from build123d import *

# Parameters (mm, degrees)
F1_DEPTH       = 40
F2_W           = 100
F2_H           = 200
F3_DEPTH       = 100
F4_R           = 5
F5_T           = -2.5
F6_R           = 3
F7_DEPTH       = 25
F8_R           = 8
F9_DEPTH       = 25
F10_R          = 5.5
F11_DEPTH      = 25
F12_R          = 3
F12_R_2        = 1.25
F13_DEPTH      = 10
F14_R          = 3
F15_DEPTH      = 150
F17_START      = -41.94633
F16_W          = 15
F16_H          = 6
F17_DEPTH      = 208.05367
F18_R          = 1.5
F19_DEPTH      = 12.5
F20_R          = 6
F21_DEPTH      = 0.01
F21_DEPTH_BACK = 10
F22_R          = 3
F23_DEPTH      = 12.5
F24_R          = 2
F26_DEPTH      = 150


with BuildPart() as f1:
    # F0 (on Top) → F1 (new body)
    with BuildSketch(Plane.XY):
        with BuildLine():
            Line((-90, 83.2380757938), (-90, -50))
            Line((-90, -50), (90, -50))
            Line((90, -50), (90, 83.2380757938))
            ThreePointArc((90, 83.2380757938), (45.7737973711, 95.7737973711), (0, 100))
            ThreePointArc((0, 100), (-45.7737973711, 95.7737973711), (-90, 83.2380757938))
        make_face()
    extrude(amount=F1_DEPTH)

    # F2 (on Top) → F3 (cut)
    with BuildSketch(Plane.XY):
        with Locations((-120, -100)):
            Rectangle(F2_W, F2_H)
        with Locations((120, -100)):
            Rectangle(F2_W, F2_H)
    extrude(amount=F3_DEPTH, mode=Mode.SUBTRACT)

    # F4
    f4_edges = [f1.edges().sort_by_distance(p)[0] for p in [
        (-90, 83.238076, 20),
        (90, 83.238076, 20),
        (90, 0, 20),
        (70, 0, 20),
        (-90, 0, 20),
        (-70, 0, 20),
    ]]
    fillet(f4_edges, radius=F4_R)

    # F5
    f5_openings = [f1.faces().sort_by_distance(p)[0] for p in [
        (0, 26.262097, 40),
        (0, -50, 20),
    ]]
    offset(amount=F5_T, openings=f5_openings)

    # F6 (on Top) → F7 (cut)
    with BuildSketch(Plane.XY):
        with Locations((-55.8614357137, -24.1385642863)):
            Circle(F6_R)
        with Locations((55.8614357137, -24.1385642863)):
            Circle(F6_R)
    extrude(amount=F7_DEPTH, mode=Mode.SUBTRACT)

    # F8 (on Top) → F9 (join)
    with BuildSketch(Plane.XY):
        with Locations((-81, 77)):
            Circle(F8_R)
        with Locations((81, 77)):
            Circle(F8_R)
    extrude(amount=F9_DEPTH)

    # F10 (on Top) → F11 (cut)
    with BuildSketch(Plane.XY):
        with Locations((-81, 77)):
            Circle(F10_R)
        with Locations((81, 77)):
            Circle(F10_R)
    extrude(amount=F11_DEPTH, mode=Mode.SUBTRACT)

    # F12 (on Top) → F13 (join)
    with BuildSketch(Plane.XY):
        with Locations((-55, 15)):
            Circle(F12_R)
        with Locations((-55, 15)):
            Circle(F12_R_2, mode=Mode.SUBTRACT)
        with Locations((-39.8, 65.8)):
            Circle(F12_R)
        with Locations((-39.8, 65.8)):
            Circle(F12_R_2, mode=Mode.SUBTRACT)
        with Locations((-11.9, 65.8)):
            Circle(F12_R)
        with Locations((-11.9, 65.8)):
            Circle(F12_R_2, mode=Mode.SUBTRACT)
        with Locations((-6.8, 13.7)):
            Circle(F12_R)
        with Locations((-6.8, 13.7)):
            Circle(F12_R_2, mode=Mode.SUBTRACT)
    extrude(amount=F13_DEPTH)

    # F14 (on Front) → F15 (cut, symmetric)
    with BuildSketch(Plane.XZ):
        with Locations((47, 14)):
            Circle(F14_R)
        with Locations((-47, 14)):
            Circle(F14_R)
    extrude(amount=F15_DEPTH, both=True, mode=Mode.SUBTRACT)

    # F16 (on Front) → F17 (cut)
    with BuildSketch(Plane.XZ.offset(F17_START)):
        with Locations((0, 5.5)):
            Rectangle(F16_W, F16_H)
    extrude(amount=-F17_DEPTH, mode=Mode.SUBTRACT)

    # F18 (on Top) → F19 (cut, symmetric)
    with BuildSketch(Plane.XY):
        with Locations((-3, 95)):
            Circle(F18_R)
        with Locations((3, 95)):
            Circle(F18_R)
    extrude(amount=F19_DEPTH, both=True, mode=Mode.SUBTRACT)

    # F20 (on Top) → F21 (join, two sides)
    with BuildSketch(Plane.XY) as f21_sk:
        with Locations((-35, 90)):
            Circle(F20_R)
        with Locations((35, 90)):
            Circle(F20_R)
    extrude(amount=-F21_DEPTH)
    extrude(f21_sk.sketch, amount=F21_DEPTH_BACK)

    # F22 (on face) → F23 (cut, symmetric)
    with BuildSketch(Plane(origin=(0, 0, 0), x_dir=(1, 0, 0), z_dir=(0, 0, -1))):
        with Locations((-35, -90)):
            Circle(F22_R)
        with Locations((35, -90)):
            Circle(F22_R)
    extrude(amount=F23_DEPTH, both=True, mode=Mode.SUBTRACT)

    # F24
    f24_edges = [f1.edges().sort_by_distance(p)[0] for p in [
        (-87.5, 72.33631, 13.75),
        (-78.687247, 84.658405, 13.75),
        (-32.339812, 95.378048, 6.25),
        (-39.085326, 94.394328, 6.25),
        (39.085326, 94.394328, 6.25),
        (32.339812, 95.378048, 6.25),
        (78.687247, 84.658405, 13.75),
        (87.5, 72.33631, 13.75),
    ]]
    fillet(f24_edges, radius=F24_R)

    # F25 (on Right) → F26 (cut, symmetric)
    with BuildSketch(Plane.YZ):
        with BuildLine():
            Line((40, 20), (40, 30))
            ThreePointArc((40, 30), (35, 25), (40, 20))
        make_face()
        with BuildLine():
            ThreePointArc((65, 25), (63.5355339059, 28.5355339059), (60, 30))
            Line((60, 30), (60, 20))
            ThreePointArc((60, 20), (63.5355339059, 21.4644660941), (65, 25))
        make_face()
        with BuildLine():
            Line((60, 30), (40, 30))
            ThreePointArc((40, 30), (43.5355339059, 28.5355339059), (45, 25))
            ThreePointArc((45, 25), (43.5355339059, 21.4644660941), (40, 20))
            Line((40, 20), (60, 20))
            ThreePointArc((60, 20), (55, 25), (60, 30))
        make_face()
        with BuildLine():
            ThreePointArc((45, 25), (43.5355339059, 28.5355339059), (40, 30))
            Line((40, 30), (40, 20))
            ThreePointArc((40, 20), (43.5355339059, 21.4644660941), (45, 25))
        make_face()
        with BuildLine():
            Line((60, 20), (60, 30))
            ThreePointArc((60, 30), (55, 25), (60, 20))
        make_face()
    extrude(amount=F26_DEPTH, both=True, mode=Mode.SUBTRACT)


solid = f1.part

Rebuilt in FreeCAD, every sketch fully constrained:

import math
import FreeCAD as App
import Part
import Sketcher

V = App.Vector
Q = App.Units.Quantity


def edges_at(feature, points):
    """Names of the edges that pass closest to the given points."""
    edges = feature.Shape.Edges
    near = lambda p: min(range(len(edges)), key=lambda i: edges[i].distToShape(Part.Vertex(*p))[0])
    return sorted({f"Edge{near(p) + 1}" for p in points})


def faces_at(feature, points):
    """Names of the faces that lie closest to the given points."""
    faces = feature.Shape.Faces
    near = lambda p: min(range(len(faces)), key=lambda i: faces[i].distToShape(Part.Vertex(*p))[0])
    return sorted({f"Face{near(p) + 1}" for p in points})

doc = App.newDocument("Part")
body = doc.addObject("PartDesign::Body", "Body")

# Sketch on XY plane
sketch1 = body.newObject("Sketcher::SketchObject", "Sketch")
sketch1.AttachmentSupport = (doc.getObject("XY_Plane"), [""])
sketch1.MapMode = "FlatFace"
sketch1.addGeometry([
    Part.LineSegment(V(-90, 83, 0), V(-90, -50, 0)),  # 0
    Part.LineSegment(V(-90, -50, 0), V(90, -50, 0)),  # 1
    Part.LineSegment(V(90, -50, 0), V(90, 83, 0)),  # 2
    Part.ArcOfCircle(Part.Circle(V(0, -150, 0), V(0, 0, 1), 250), math.radians(69), math.radians(90)),  # 3
    Part.ArcOfCircle(Part.Circle(V(0, -150, 0), V(0, 0, 1), 250), math.radians(90), math.radians(111)),  # 4
], False)
sketch1.addConstraint([
    Sketcher.Constraint("Coincident", 0, 2, 1, 1),
    Sketcher.Constraint("Coincident", 1, 2, 2, 1),
    Sketcher.Constraint("Coincident", 2, 2, 3, 1),
    Sketcher.Constraint("Tangent", 3, 2, 4, 1),
    Sketcher.Constraint("Coincident", 4, 2, 0, 1),
    Sketcher.Constraint("Vertical", 0),
    Sketcher.Constraint("Horizontal", 1),
    Sketcher.Constraint("Vertical", 2),
    Sketcher.Constraint("Equal", 3, 4),
    Sketcher.Constraint("Symmetric", 2, 2, 4, 2, -2),
    Sketcher.Constraint("PointOnObject", 3, 2, -2),
    Sketcher.Constraint("Radius", 3, Q("250 mm")),
    Sketcher.Constraint("DistanceX", 1, 1, 1, 2, Q("180 mm")),
    Sketcher.Constraint("DistanceY", 3, 3, -1, 1, Q("150 mm")),
    Sketcher.Constraint("DistanceY", 0, 2, -1, 1, Q("50 mm")),
])
pad1 = body.newObject("PartDesign::Pad", "Pad")
pad1.Profile = sketch1
pad1.Length = 40

# Sketch on XY plane
sketch2 = body.newObject("Sketcher::SketchObject", "Sketch001")
sketch2.AttachmentSupport = (doc.getObject("XY_Plane"), [""])
sketch2.MapMode = "FlatFace"
sketch2.addGeometry([
    Part.LineSegment(V(-170, 0, 0), V(-170, -200, 0)),  # 0
    Part.LineSegment(V(-170, -200, 0), V(-70, -200, 0)),  # 1
    Part.LineSegment(V(-70, -200, 0), V(-70, 0, 0)),  # 2
    Part.LineSegment(V(-70, 0, 0), V(-170, 0, 0)),  # 3
    Part.LineSegment(V(70, 0, 0), V(70, -200, 0)),  # 4
    Part.LineSegment(V(70, -200, 0), V(170, -200, 0)),  # 5
    Part.LineSegment(V(170, -200, 0), V(170, 0, 0)),  # 6
    Part.LineSegment(V(170, 0, 0), V(70, 0, 0)),  # 7
], False)
sketch2.addConstraint([
    Sketcher.Constraint("Coincident", 0, 2, 1, 1),
    Sketcher.Constraint("Coincident", 1, 2, 2, 1),
    Sketcher.Constraint("Coincident", 2, 2, 3, 1),
    Sketcher.Constraint("Coincident", 3, 2, 0, 1),
    Sketcher.Constraint("Coincident", 4, 2, 5, 1),
    Sketcher.Constraint("Coincident", 5, 2, 6, 1),
    Sketcher.Constraint("Coincident", 6, 2, 7, 1),
    Sketcher.Constraint("Coincident", 7, 2, 4, 1),
    Sketcher.Constraint("Vertical", 0),
    Sketcher.Constraint("Horizontal", 1),
    Sketcher.Constraint("Vertical", 2),
    Sketcher.Constraint("Horizontal", 3),
    Sketcher.Constraint("Vertical", 4),
    Sketcher.Constraint("Horizontal", 5),
    Sketcher.Constraint("Vertical", 6),
    Sketcher.Constraint("Horizontal", 7),
    Sketcher.Constraint("Symmetric", 3, 2, 6, 2, -1, 1),
    Sketcher.Constraint("Symmetric", 1, 2, 4, 2, -2),
    Sketcher.Constraint("PointOnObject", 2, 2, -1),
    Sketcher.Constraint("DistanceX", 1, 1, 1, 2, Q("100 mm")),
    Sketcher.Constraint("DistanceY", 0, 2, 0, 1, Q("200 mm")),
    Sketcher.Constraint("DistanceX", 0, 2, -1, 1, Q("170 mm")),
])
pocket1 = body.newObject("PartDesign::Pocket", "Pocket")
pocket1.Profile = sketch2
pocket1.Length = 100
pocket1.Reversed = True
doc.recompute()

fillet = body.newObject("PartDesign::Fillet", "Fillet")
fillet.Base = (pocket1, edges_at(pocket1, [
    (-90, 83.238, 20),
    (90, 83.238, 20),
    (90, 0, 20),
    (70, 0, 20),
    (-90, 0, 20),
    (-70, 0, 20),
]))
fillet.Radius = 5
doc.recompute()

thickness = body.newObject("PartDesign::Thickness", "Thickness")
thickness.Base = (fillet, faces_at(fillet, [(0, 25, 40), (0, -50, 20)]))
thickness.Value = 2.5
thickness.Reversed = True
thickness.Join = "Arc"

# Sketch on XY plane
sketch3 = body.newObject("Sketcher::SketchObject", "Sketch002")
sketch3.AttachmentSupport = (doc.getObject("XY_Plane"), [""])
sketch3.MapMode = "FlatFace"
sketch3.addGeometry([
    Part.Circle(V(-55.9, -24.1, 0), V(0, 0, 1), 3),
    Part.Circle(V(55.9, -24.1, 0), V(0, 0, 1), 3),
], False)
sketch3.addConstraint([
    Sketcher.Constraint("Equal", 0, 1),
    Sketcher.Constraint("Symmetric", 0, 3, 1, 3, -2),
    Sketcher.Constraint("Diameter", 0, Q("6 mm")),
    Sketcher.Constraint("DistanceX", 0, 3, 1, 3, Q("111.722871 mm")),
    Sketcher.Constraint("DistanceY", 0, 3, -1, 1, Q("24.138564 mm")),
])
pocket2 = body.newObject("PartDesign::Pocket", "Pocket001")
pocket2.Profile = sketch3
pocket2.Length = 25
pocket2.Reversed = True

# Sketch on XY plane
sketch4 = body.newObject("Sketcher::SketchObject", "Sketch003")
sketch4.AttachmentSupport = (doc.getObject("XY_Plane"), [""])
sketch4.MapMode = "FlatFace"
sketch4.addGeometry([
    Part.Circle(V(-81, 77, 0), V(0, 0, 1), 8),
    Part.Circle(V(81, 77, 0), V(0, 0, 1), 8),
], False)
sketch4.addConstraint([
    Sketcher.Constraint("Equal", 0, 1),
    Sketcher.Constraint("Symmetric", 0, 3, 1, 3, -2),
    Sketcher.Constraint("Diameter", 0, Q("16 mm")),
    Sketcher.Constraint("DistanceX", 0, 3, -1, 1, Q("81 mm")),
    Sketcher.Constraint("DistanceY", -1, 1, 0, 3, Q("77 mm")),
])
pad2 = body.newObject("PartDesign::Pad", "Pad001")
pad2.Profile = sketch4
pad2.Length = 25

# Sketch on XY plane
sketch5 = body.newObject("Sketcher::SketchObject", "Sketch004")
sketch5.AttachmentSupport = (doc.getObject("XY_Plane"), [""])
sketch5.MapMode = "FlatFace"
sketch5.addGeometry([
    Part.Circle(V(-81, 77, 0), V(0, 0, 1), 6),
    Part.Circle(V(81, 77, 0), V(0, 0, 1), 6),
], False)
sketch5.addConstraint([
    Sketcher.Constraint("Equal", 0, 1),
    Sketcher.Constraint("Symmetric", 0, 3, 1, 3, -2),
    Sketcher.Constraint("Diameter", 0, Q("11 mm")),
    Sketcher.Constraint("DistanceX", 0, 3, -1, 1, Q("81 mm")),
    Sketcher.Constraint("DistanceY", -1, 1, 0, 3, Q("77 mm")),
])
pocket3 = body.newObject("PartDesign::Pocket", "Pocket002")
pocket3.Profile = sketch5
pocket3.Length = 25
pocket3.Reversed = True

# Sketch on XY plane
sketch6 = body.newObject("Sketcher::SketchObject", "Sketch005")
sketch6.AttachmentSupport = (doc.getObject("XY_Plane"), [""])
sketch6.MapMode = "FlatFace"
sketch6.addGeometry([
    Part.Circle(V(-55, 15, 0), V(0, 0, 1), 3),  # 0
    Part.Circle(V(-55, 15, 0), V(0, 0, 1), 1.2),  # 1
    Part.Circle(V(-39.8, 65.8, 0), V(0, 0, 1), 3),  # 2
    Part.Circle(V(-39.8, 65.8, 0), V(0, 0, 1), 1.2),  # 3
    Part.Circle(V(-11.9, 65.8, 0), V(0, 0, 1), 3),  # 4
    Part.Circle(V(-11.9, 65.8, 0), V(0, 0, 1), 1.2),  # 5
    Part.Circle(V(-6.8, 13.7, 0), V(0, 0, 1), 3),  # 6
    Part.Circle(V(-6.8, 13.7, 0), V(0, 0, 1), 1.2),  # 7
], False)
sketch6.addConstraint([
    Sketcher.Constraint("Coincident", 1, 3, 0, 3),
    Sketcher.Constraint("Coincident", 3, 3, 2, 3),
    Sketcher.Constraint("Coincident", 5, 3, 4, 3),
    Sketcher.Constraint("Coincident", 7, 3, 6, 3),
    Sketcher.Constraint("Equal", 0, 2),
    Sketcher.Constraint("Equal", 1, 3),
    Sketcher.Constraint("Equal", 2, 4),
    Sketcher.Constraint("Equal", 3, 5),
    Sketcher.Constraint("Equal", 4, 6),
    Sketcher.Constraint("Equal", 5, 7),
    Sketcher.Constraint("Horizontal", 3, 3, 4, 3),
    Sketcher.Constraint("Diameter", 0, Q("6 mm")),
    Sketcher.Constraint("Diameter", 1, Q("2.5 mm")),
    Sketcher.Constraint("DistanceX", 0, 3, -1, 1, Q("55 mm")),
    Sketcher.Constraint("DistanceY", -1, 1, 0, 3, Q("15 mm")),
    Sketcher.Constraint("DistanceX", 2, 3, 6, 3, Q("33 mm")),
    Sketcher.Constraint("DistanceX", 2, 3, -1, 1, Q("39.8 mm")),
    Sketcher.Constraint("DistanceY", -1, 1, 2, 3, Q("65.8 mm")),
    Sketcher.Constraint("DistanceX", 4, 3, -1, 1, Q("11.9 mm")),
    Sketcher.Constraint("DistanceY", -1, 1, 6, 3, Q("13.7 mm")),
])
pad3 = body.newObject("PartDesign::Pad", "Pad002")
pad3.Profile = sketch6
pad3.Length = 10

# Sketch on XZ plane
sketch7 = body.newObject("Sketcher::SketchObject", "Sketch006")
sketch7.AttachmentSupport = (doc.getObject("XZ_Plane"), [""])
sketch7.MapMode = "FlatFace"
sketch7.addGeometry([
    Part.Circle(V(47, 14, 0), V(0, 0, 1), 3),
    Part.Circle(V(-47, 14, 0), V(0, 0, 1), 3),
], False)
sketch7.addConstraint([
    Sketcher.Constraint("Equal", 0, 1),
    Sketcher.Constraint("Symmetric", 0, 3, 1, 3, -2),
    Sketcher.Constraint("Diameter", 0, Q("6 mm")),
    Sketcher.Constraint("DistanceX", -1, 1, 0, 3, Q("47 mm")),
    Sketcher.Constraint("DistanceY", -1, 1, 0, 3, Q("14 mm")),
])
pocket4 = body.newObject("PartDesign::Pocket", "Pocket003")
pocket4.Profile = sketch7
pocket4.Length = 300
pocket4.Midplane = True

# Sketch on XZ plane
sketch8 = body.newObject("Sketcher::SketchObject", "Sketch007")
sketch8.AttachmentSupport = (doc.getObject("XZ_Plane"), [""])
sketch8.MapMode = "FlatFace"
sketch8.AttachmentOffset = App.Placement(V(0, 0, -41.94633), App.Rotation())
sketch8.addGeometry([
    Part.LineSegment(V(-8, 8, 0), V(-8, 2, 0)),
    Part.LineSegment(V(-8, 2, 0), V(8, 2, 0)),
    Part.LineSegment(V(8, 2, 0), V(8, 8, 0)),
    Part.LineSegment(V(8, 8, 0), V(-8, 8, 0)),
], False)
sketch8.addConstraint([
    Sketcher.Constraint("Coincident", 0, 2, 1, 1),
    Sketcher.Constraint("Coincident", 1, 2, 2, 1),
    Sketcher.Constraint("Coincident", 2, 2, 3, 1),
    Sketcher.Constraint("Coincident", 3, 2, 0, 1),
    Sketcher.Constraint("Vertical", 0),
    Sketcher.Constraint("Horizontal", 1),
    Sketcher.Constraint("Vertical", 2),
    Sketcher.Constraint("Horizontal", 3),
    Sketcher.Constraint("DistanceX", 1, 1, 1, 2, Q("15 mm")),
    Sketcher.Constraint("DistanceY", 0, 2, 0, 1, Q("6 mm")),
    Sketcher.Constraint("DistanceX", 0, 2, -1, 1, Q("7.5 mm")),
    Sketcher.Constraint("DistanceY", -1, 1, 0, 2, Q("2.5 mm")),
])
pocket5 = body.newObject("PartDesign::Pocket", "Pocket004")
pocket5.Profile = sketch8
pocket5.Length = 208.05367

# Sketch on XY plane
sketch9 = body.newObject("Sketcher::SketchObject", "Sketch008")
sketch9.AttachmentSupport = (doc.getObject("XY_Plane"), [""])
sketch9.MapMode = "FlatFace"
sketch9.addGeometry([
    Part.Circle(V(-3, 95, 0), V(0, 0, 1), 1.5),
    Part.Circle(V(3, 95, 0), V(0, 0, 1), 1.5),
], False)
sketch9.addConstraint([
    Sketcher.Constraint("Equal", 0, 1),
    Sketcher.Constraint("Symmetric", 0, 3, 1, 3, -2),
    Sketcher.Constraint("Diameter", 0, Q("3 mm")),
    Sketcher.Constraint("DistanceX", 0, 3, -1, 1, Q("3 mm")),
    Sketcher.Constraint("DistanceY", -1, 1, 0, 3, Q("95 mm")),
])
pocket6 = body.newObject("PartDesign::Pocket", "Pocket005")
pocket6.Profile = sketch9
pocket6.Length = 25
pocket6.Midplane = True

# Sketch on XY plane
sketch10 = body.newObject("Sketcher::SketchObject", "Sketch009")
sketch10.AttachmentSupport = (doc.getObject("XY_Plane"), [""])
sketch10.MapMode = "FlatFace"
sketch10.addGeometry([
    Part.Circle(V(-35, 90, 0), V(0, 0, 1), 6),
    Part.Circle(V(35, 90, 0), V(0, 0, 1), 6),
], False)
sketch10.addConstraint([
    Sketcher.Constraint("Equal", 0, 1),
    Sketcher.Constraint("Symmetric", 0, 3, 1, 3, -2),
    Sketcher.Constraint("Diameter", 0, Q("12 mm")),
    Sketcher.Constraint("DistanceX", 0, 3, -1, 1, Q("35 mm")),
    Sketcher.Constraint("DistanceY", -1, 1, 0, 3, Q("90 mm")),
])
pad4 = body.newObject("PartDesign::Pad", "Pad003")
pad4.Profile = sketch10
pad4.Type = "TwoLengths"
pad4.Length = 0.01
pad4.Length2 = 10
pad4.Reversed = True

# Sketch on XY plane
sketch11 = body.newObject("Sketcher::SketchObject", "Sketch010")
sketch11.AttachmentSupport = (doc.getObject("XY_Plane"), [""])
sketch11.MapMode = "FlatFace"
sketch11.addGeometry([
    Part.Circle(V(-35, 90, 0), V(0, 0, 1), 3),
    Part.Circle(V(35, 90, 0), V(0, 0, 1), 3),
], False)
sketch11.addConstraint([
    Sketcher.Constraint("Equal", 0, 1),
    Sketcher.Constraint("Symmetric", 0, 3, 1, 3, -2),
    Sketcher.Constraint("Diameter", 0, Q("6 mm")),
    Sketcher.Constraint("DistanceX", 0, 3, -1, 1, Q("35 mm")),
    Sketcher.Constraint("DistanceY", -1, 1, 0, 3, Q("90 mm")),
])
pocket7 = body.newObject("PartDesign::Pocket", "Pocket006")
pocket7.Profile = sketch11
pocket7.Length = 25
pocket7.Midplane = True
doc.recompute()

fillet2 = body.newObject("PartDesign::Fillet", "Fillet001")
fillet2.Base = (pocket7, edges_at(pocket7, [
    (-87.5, 72.336, 13.75),
    (-78.687, 84.658, 13.75),
    (-32.34, 95.378, 6.25),
    (-39.085, 94.394, 6.25),
    (39.085, 94.394, 6.25),
    (32.34, 95.378, 6.25),
    (78.687, 84.658, 13.75),
    (87.5, 72.336, 13.75),
]))
fillet2.Radius = 2

# Sketch on YZ plane
sketch12 = body.newObject("Sketcher::SketchObject", "Sketch011")
sketch12.AttachmentSupport = (doc.getObject("YZ_Plane"), [""])
sketch12.MapMode = "FlatFace"
sketch12.addGeometry([
    Part.ArcOfCircle(Part.Circle(V(40, 25, 0), V(0, 0, 1), 5), math.radians(90), math.radians(270)),  # 0
    Part.LineSegment(V(40, 20, 0), V(60, 20, 0)),  # 1
    Part.ArcOfCircle(Part.Circle(V(60, 25, 0), V(0, 0, 1), 5), math.radians(-90), math.radians(0)),  # 2
    Part.ArcOfCircle(Part.Circle(V(60, 25, 0), V(0, 0, 1), 5), math.radians(0), math.radians(90)),  # 3
    Part.LineSegment(V(60, 30, 0), V(40, 30, 0)),  # 4
], False)
sketch12.addConstraint([
    Sketcher.Constraint("Tangent", 0, 2, 1, 1),
    Sketcher.Constraint("Tangent", 1, 2, 2, 1),
    Sketcher.Constraint("Tangent", 2, 2, 3, 1),
    Sketcher.Constraint("Tangent", 3, 2, 4, 1),
    Sketcher.Constraint("Tangent", 4, 2, 0, 1),
    Sketcher.Constraint("Horizontal", 1),
    Sketcher.Constraint("Horizontal", 4),
    Sketcher.Constraint("Equal", 0, 2),
    Sketcher.Constraint("Horizontal", 3, 3, 2, 2),
    Sketcher.Constraint("Radius", 0, Q("5 mm")),
    Sketcher.Constraint("DistanceX", 1, 1, 1, 2, Q("20 mm")),
    Sketcher.Constraint("DistanceX", -1, 1, 0, 3, Q("40 mm")),
    Sketcher.Constraint("DistanceY", -1, 1, 0, 3, Q("25 mm")),
])
pocket8 = body.newObject("PartDesign::Pocket", "Pocket007")
pocket8.Profile = sketch12
pocket8.Length = 300
pocket8.Midplane = True

doc.recompute()
